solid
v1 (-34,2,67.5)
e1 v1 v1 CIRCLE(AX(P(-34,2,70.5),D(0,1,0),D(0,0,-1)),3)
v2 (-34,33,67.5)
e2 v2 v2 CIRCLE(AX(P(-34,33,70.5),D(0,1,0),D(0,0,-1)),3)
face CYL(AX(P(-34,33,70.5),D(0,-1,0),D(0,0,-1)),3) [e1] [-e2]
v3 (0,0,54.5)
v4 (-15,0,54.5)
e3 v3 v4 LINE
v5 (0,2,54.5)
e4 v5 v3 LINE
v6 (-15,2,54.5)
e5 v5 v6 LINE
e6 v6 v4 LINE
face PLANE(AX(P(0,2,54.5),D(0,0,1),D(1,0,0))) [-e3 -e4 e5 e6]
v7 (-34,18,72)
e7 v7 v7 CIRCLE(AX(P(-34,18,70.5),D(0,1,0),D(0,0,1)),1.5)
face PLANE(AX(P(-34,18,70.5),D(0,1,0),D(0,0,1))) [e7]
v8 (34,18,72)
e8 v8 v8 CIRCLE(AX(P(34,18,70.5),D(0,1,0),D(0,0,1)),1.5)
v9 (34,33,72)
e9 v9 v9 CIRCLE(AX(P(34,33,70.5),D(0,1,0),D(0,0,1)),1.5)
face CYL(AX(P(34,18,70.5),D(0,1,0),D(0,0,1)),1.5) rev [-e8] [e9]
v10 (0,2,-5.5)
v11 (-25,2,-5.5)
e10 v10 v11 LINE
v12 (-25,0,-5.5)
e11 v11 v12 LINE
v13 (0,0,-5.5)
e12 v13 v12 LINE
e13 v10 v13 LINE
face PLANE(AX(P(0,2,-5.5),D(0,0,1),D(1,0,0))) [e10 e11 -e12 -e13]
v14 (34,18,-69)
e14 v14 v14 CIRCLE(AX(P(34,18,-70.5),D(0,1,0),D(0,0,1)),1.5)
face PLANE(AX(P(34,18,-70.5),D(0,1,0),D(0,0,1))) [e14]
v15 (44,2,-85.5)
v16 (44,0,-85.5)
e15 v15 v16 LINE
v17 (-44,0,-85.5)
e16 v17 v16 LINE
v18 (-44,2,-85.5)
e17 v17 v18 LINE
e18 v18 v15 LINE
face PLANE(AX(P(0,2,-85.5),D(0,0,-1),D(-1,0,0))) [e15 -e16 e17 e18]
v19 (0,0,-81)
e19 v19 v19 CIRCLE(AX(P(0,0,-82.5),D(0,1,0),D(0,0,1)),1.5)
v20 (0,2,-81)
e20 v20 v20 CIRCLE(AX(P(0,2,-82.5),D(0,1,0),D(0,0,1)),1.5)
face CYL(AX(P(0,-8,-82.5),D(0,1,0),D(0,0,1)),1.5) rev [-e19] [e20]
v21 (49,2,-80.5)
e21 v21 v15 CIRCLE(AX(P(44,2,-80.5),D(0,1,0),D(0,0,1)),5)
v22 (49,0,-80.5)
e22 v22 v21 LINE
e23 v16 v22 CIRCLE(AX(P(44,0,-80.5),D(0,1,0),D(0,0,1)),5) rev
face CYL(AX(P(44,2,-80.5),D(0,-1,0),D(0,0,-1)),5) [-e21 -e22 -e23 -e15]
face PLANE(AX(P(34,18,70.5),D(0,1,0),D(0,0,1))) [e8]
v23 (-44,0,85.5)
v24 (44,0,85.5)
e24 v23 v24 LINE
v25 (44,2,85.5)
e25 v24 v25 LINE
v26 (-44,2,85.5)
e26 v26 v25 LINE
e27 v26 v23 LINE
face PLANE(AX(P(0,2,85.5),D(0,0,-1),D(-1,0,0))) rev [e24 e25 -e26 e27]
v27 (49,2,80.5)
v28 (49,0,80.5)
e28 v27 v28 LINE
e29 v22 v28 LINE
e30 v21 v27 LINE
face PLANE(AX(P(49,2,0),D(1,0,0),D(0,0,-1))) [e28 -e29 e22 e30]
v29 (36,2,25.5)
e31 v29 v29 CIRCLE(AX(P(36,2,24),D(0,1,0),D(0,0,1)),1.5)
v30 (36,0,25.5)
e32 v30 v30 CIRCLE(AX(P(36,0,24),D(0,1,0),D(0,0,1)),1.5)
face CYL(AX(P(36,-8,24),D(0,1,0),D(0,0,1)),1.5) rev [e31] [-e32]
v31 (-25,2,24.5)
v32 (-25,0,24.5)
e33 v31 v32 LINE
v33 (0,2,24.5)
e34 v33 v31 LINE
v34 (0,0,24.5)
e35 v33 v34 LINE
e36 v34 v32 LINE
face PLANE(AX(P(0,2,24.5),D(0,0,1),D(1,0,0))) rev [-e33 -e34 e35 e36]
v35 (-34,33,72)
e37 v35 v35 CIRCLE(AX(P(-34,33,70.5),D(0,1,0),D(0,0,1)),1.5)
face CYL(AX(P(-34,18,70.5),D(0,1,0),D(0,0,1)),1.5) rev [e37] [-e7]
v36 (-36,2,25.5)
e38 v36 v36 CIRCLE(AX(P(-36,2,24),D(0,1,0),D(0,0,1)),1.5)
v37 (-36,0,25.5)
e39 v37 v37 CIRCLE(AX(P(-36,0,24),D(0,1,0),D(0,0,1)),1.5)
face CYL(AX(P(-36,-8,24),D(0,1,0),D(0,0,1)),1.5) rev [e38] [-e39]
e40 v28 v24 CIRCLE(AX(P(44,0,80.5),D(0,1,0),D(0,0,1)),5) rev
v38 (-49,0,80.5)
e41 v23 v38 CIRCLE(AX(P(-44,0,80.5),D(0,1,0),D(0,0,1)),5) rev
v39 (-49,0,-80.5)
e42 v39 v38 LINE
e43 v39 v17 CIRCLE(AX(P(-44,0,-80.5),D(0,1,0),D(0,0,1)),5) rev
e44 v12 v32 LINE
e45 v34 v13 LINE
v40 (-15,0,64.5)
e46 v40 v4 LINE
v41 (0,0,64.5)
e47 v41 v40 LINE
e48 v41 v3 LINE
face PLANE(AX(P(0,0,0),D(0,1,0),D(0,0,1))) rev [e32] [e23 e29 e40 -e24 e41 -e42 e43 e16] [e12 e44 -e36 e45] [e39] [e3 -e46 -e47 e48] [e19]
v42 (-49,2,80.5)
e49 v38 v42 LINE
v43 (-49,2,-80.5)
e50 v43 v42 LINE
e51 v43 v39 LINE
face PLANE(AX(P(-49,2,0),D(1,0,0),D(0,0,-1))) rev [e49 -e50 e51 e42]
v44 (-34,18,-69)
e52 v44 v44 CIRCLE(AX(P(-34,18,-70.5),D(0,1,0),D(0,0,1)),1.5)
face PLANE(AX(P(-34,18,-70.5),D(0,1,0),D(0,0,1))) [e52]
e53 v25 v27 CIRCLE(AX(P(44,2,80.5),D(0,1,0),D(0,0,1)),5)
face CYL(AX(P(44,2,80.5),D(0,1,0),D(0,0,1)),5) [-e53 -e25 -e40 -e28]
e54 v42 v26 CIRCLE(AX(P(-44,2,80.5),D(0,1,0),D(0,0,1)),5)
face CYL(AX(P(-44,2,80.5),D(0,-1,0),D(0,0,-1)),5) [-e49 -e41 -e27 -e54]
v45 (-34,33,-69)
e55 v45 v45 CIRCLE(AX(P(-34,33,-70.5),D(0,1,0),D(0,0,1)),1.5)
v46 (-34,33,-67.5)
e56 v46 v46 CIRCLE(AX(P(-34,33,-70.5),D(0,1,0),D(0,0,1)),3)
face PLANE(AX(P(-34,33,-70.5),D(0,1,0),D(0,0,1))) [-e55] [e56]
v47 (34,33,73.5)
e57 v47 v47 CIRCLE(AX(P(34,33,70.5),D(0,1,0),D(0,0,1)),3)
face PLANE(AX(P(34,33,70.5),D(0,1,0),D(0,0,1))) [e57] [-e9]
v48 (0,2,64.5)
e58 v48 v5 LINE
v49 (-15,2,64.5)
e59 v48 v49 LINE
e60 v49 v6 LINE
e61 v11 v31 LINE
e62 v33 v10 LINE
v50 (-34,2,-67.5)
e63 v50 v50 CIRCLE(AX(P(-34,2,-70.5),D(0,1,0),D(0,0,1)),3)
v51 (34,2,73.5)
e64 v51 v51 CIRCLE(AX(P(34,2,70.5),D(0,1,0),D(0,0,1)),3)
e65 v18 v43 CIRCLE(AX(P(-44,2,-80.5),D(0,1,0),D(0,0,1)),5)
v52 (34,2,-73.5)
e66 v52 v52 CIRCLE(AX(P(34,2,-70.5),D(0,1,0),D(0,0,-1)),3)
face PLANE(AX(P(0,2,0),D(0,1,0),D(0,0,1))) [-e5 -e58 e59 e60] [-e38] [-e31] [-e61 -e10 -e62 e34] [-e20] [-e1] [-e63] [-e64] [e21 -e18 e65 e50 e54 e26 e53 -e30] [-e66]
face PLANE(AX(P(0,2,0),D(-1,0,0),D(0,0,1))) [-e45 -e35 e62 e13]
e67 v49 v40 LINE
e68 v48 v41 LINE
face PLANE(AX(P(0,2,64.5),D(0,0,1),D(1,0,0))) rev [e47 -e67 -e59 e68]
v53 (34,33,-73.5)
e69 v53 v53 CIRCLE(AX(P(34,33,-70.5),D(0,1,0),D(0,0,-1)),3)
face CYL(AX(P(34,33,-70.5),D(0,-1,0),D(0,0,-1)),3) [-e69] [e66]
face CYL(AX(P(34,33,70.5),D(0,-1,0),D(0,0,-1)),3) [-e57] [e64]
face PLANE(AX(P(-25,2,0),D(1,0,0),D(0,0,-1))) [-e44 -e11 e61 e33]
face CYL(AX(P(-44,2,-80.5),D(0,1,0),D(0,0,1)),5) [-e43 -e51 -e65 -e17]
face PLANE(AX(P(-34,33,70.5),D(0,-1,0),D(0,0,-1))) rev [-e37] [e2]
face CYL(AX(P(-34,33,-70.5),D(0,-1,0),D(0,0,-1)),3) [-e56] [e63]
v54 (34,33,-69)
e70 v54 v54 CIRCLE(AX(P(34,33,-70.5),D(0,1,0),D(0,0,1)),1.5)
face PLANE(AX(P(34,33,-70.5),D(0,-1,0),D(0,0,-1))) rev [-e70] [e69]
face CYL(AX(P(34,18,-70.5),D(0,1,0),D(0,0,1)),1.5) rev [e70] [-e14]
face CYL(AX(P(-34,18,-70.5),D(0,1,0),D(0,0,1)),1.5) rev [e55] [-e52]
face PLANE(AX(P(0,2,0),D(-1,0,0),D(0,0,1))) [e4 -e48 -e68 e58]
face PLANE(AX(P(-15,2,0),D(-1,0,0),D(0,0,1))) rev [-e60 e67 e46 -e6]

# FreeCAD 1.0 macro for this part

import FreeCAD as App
import Part
import Sketcher

V = App.Vector


def edges_at(feature, points):
    """Names of the edges that pass closest to the given points."""
    edges = feature.Shape.Edges
    near = lambda p: min(range(len(edges)), key=lambda i: edges[i].distToShape(Part.Vertex(*p))[0])
    return sorted({f"Edge{near(p) + 1}" for p in points})

doc = App.newDocument("Part")
params = doc.addObject("Spreadsheet::Sheet", "Params")
for row, (alias, value) in enumerate([
    ("sketch1_width", "98 mm"),
    ("sketch1_width2", "15 mm"),
    ("sketch1_width3", "25 mm"),
    ("sketch1_height", "171 mm"),
    ("sketch1_height2", "10 mm"),
    ("pad1_length", "2 mm"),
    ("fillet_radius", "5 mm"),
    ("sketch2_diameter", "3 mm"),
    ("pocket1_length", "10 mm"),
    ("sketch3_diameter", "6 mm"),
    ("pad2_length", "31 mm"),
    ("sketch4_diameter", "3 mm"),
    ("pocket2_length", "15 mm"),
], start=1):
    params.set(f"A{row}", alias)
    params.set(f"B{row}", "=" + value)
    params.setAlias(f"B{row}", alias)

body = doc.addObject("PartDesign::Body", "Body")

# Sketch on XZ plane
sketch1 = body.newObject("Sketcher::SketchObject", "Sketch")
sketch1.AttachmentSupport = (doc.getObject("XZ_Plane"), [""])
sketch1.MapMode = "FlatFace"
sketch1.addGeometry(Part.LineSegment(V(-49, -85.5, 0), V(-49, 85.5, 0)), False)
sketch1.addGeometry(Part.LineSegment(V(-49, 85.5, 0), V(49, 85.5, 0)), False)
sketch1.addGeometry(Part.LineSegment(V(49, 85.5, 0), V(49, -85.5, 0)), False)
sketch1.addGeometry(Part.LineSegment(V(49, -85.5, 0), V(-49, -85.5, 0)), False)
sketch1.addGeometry(Part.LineSegment(V(0, 64.5, 0), V(-15, 64.5, 0)), False)
sketch1.addGeometry(Part.LineSegment(V(-15, 64.5, 0), V(-15, 54.5, 0)), False)
sketch1.addGeometry(Part.LineSegment(V(-15, 54.5, 0), V(0, 54.5, 0)), False)
sketch1.addGeometry(Part.LineSegment(V(0, 54.5, 0), V(0, 64.5, 0)), False)
sketch1.addGeometry(Part.LineSegment(V(-25, 24.5, 0), V(-25, -5.5, 0)), False)
sketch1.addGeometry(Part.LineSegment(V(-25, -5.5, 0), V(0, -5.5, 0)), False)
sketch1.addGeometry(Part.LineSegment(V(0, -5.5, 0), V(0, 24.5, 0)), False)
sketch1.addGeometry(Part.LineSegment(V(0, 24.5, 0), V(-25, 24.5, 0)), False)
sketch1.addConstraint(Sketcher.Constraint("Coincident", 0, 2, 1, 1))
sketch1.addConstraint(Sketcher.Constraint("Coincident", 1, 2, 2, 1))
sketch1.addConstraint(Sketcher.Constraint("Coincident", 2, 2, 3, 1))
sketch1.addConstraint(Sketcher.Constraint("Coincident", 3, 2, 0, 1))
sketch1.addConstraint(Sketcher.Constraint("Coincident", 4, 2, 5, 1))
sketch1.addConstraint(Sketcher.Constraint("Coincident", 5, 2, 6, 1))
sketch1.addConstraint(Sketcher.Constraint("Coincident", 6, 2, 7, 1))
sketch1.addConstraint(Sketcher.Constraint("Coincident", 7, 2, 4, 1))
sketch1.addConstraint(Sketcher.Constraint("Coincident", 8, 2, 9, 1))
sketch1.addConstraint(Sketcher.Constraint("Coincident", 9, 2, 10, 1))
sketch1.addConstraint(Sketcher.Constraint("Coincident", 10, 2, 11, 1))
sketch1.addConstraint(Sketcher.Constraint("Coincident", 11, 2, 8, 1))
sketch1.addConstraint(Sketcher.Constraint("Vertical", 0))
sketch1.addConstraint(Sketcher.Constraint("Horizontal", 1))
sketch1.addConstraint(Sketcher.Constraint("Vertical", 2))
sketch1.addConstraint(Sketcher.Constraint("Horizontal", 3))
sketch1.addConstraint(Sketcher.Constraint("Horizontal", 4))
sketch1.addConstraint(Sketcher.Constraint("Vertical", 5))
sketch1.addConstraint(Sketcher.Constraint("Horizontal", 6))
sketch1.addConstraint(Sketcher.Constraint("Vertical", 7))
sketch1.addConstraint(Sketcher.Constraint("Vertical", 8))
sketch1.addConstraint(Sketcher.Constraint("Horizontal", 9))
sketch1.addConstraint(Sketcher.Constraint("Vertical", 10))
sketch1.addConstraint(Sketcher.Constraint("Horizontal", 11))
sketch1.addConstraint(Sketcher.Constraint("Symmetric", 0, 2, 2, 2, -1, 1))
sketch1.addConstraint(Sketcher.Constraint("PointOnObject", 6, 2, -2))
sketch1.addConstraint(Sketcher.Constraint("PointOnObject", 9, 2, -2))
sketch1.addConstraint(Sketcher.Constraint("DistanceX", 1, 1, 1, 2, 98.0))
sketch1.addConstraint(Sketcher.Constraint("DistanceX", 4, 2, 4, 1, 15.0))
sketch1.addConstraint(Sketcher.Constraint("DistanceX", 9, 1, 9, 2, 25.0))
sketch1.addConstraint(Sketcher.Constraint("DistanceY", 0, 1, 0, 2, 171.0))
sketch1.addConstraint(Sketcher.Constraint("DistanceY", 5, 2, 5, 1, 10.0))
sketch1.addConstraint(Sketcher.Constraint("DistanceY", 8, 2, 8, 1, 30.0))
sketch1.addConstraint(Sketcher.Constraint("DistanceY", 4, 2, 0, 2, 21.0))
sketch1.addConstraint(Sketcher.Constraint("DistanceY", 8, 2, 5, 2, 60.0))
sketch1.setExpression("Constraints[27]", "Params.sketch1_width")
sketch1.setExpression("Constraints[28]", "Params.sketch1_width2")
sketch1.setExpression("Constraints[29]", "Params.sketch1_width3")
sketch1.setExpression("Constraints[30]", "Params.sketch1_height")
sketch1.setExpression("Constraints[31]", "Params.sketch1_height2")
pad1 = body.newObject("PartDesign::Pad", "Pad")
pad1.Profile = sketch1
pad1.setExpression("Length", "Params.pad1_length")
pad1.Reversed = True
doc.recompute()

fillet = body.newObject("PartDesign::Fillet", "Fillet")
fillet.Base = (pad1, edges_at(pad1, [
    (49, 1, 85.5),
    (-49, 1, 85.5),
    (-49, 1, -85.5),
    (49, 1, -85.5),
]))
fillet.setExpression("Radius", "Params.fillet_radius")

# Sketch on XZ plane
sketch2 = body.newObject("Sketcher::SketchObject", "Sketch001")
sketch2.AttachmentSupport = (doc.getObject("XZ_Plane"), [""])
sketch2.MapMode = "FlatFace"
sketch2.AttachmentOffset = App.Placement(V(0, 0, -2), App.Rotation())
sketch2.addGeometry(Part.Circle(V(-36, 24, 0), V(0, 0, 1), 1.5), False)
sketch2.addGeometry(Part.Circle(V(36, 24, 0), V(0, 0, 1), 1.5), False)
sketch2.addGeometry(Part.Circle(V(0, -82.5, 0), V(0, 0, 1), 1.5), False)
sketch2.addConstraint(Sketcher.Constraint("Equal", 0, 1))
sketch2.addConstraint(Sketcher.Constraint("Equal", 1, 2))
sketch2.addConstraint(Sketcher.Constraint("Symmetric", 0, 3, 1, 3, -2))
sketch2.addConstraint(Sketcher.Constraint("PointOnObject", 2, 3, -2))
sketch2.addConstraint(Sketcher.Constraint("Diameter", 0, 3.0))
sketch2.addConstraint(Sketcher.Constraint("DistanceX", 0, 3, -1, 1, 36.0))
sketch2.addConstraint(Sketcher.Constraint("DistanceY", -1, 1, 0, 3, 24.0))
sketch2.addConstraint(Sketcher.Constraint("DistanceY", 2, 3, -1, 1, 82.5))
sketch2.setExpression("Constraints[4]", "Params.sketch2_diameter")
pocket1 = body.newObject("PartDesign::Pocket", "Pocket")
pocket1.Profile = sketch2
pocket1.setExpression("Length", "Params.pocket1_length")
pocket1.Reversed = True

# Sketch on XZ plane
sketch3 = body.newObject("Sketcher::SketchObject", "Sketch002")
sketch3.AttachmentSupport = (doc.getObject("XZ_Plane"), [""])
sketch3.MapMode = "FlatFace"
sketch3.AttachmentOffset = App.Placement(V(0, 0, -2), App.Rotation())
sketch3.addGeometry(Part.Circle(V(-34, -70.5, 0), V(0, 0, 1), 3), False)
sketch3.addGeometry(Part.Circle(V(34, -70.5, 0), V(0, 0, 1), 3), False)
sketch3.addGeometry(Part.Circle(V(34, 70.5, 0), V(0, 0, 1), 3), False)
sketch3.addGeometry(Part.Circle(V(-34, 70.5, 0), V(0, 0, 1), 3), False)
sketch3.addConstraint(Sketcher.Constraint("Equal", 0, 1))
sketch3.addConstraint(Sketcher.Constraint("Equal", 1, 2))
sketch3.addConstraint(Sketcher.Constraint("Equal", 2, 3))
sketch3.addConstraint(Sketcher.Constraint("Symmetric", 0, 3, 2, 3, -1, 1))
sketch3.addConstraint(Sketcher.Constraint("Symmetric", 1, 3, 3, 3, -1, 1))
sketch3.addConstraint(Sketcher.Constraint("Symmetric", 0, 3, 1, 3, -2))
sketch3.addConstraint(Sketcher.Constraint("Diameter", 0, 6.0))
sketch3.addConstraint(Sketcher.Constraint("DistanceX", 0, 3, -1, 1, 34.0))
sketch3.addConstraint(Sketcher.Constraint("DistanceY", 1, 3, 2, 3, 141.0))
sketch3.setExpression("Constraints[6]", "Params.sketch3_diameter")
pad2 = body.newObject("PartDesign::Pad", "Pad001")
pad2.Profile = sketch3
pad2.setExpression("Length", "Params.pad2_length")
pad2.Reversed = True

# Sketch on XZ plane
sketch4 = body.newObject("Sketcher::SketchObject", "Sketch003")
sketch4.AttachmentSupport = (doc.getObject("XZ_Plane"), [""])
sketch4.MapMode = "FlatFace"
sketch4.AttachmentOffset = App.Placement(V(0, 0, -33), App.Rotation())
sketch4.addGeometry(Part.Circle(V(-34, -70.5, 0), V(0, 0, 1), 1.5), False)
sketch4.addGeometry(Part.Circle(V(34, -70.5, 0), V(0, 0, 1), 1.5), False)
sketch4.addGeometry(Part.Circle(V(34, 70.5, 0), V(0, 0, 1), 1.5), False)
sketch4.addGeometry(Part.Circle(V(-34, 70.5, 0), V(0, 0, 1), 1.5), False)
sketch4.addConstraint(Sketcher.Constraint("Equal", 0, 1))
sketch4.addConstraint(Sketcher.Constraint("Equal", 1, 2))
sketch4.addConstraint(Sketcher.Constraint("Equal", 2, 3))
sketch4.addConstraint(Sketcher.Constraint("Symmetric", 0, 3, 2, 3, -1, 1))
sketch4.addConstraint(Sketcher.Constraint("Symmetric", 1, 3, 3, 3, -1, 1))
sketch4.addConstraint(Sketcher.Constraint("Symmetric", 0, 3, 1, 3, -2))
sketch4.addConstraint(Sketcher.Constraint("Diameter", 0, 3.0))
sketch4.addConstraint(Sketcher.Constraint("DistanceX", 0, 3, -1, 1, 34.0))
sketch4.addConstraint(Sketcher.Constraint("DistanceY", 1, 3, 2, 3, 141.0))
sketch4.setExpression("Constraints[6]", "Params.sketch4_diameter")
pocket2 = body.newObject("PartDesign::Pocket", "Pocket001")
pocket2.Profile = sketch4
pocket2.setExpression("Length", "Params.pocket2_length")
pocket2.Reversed = True

doc.recompute()
